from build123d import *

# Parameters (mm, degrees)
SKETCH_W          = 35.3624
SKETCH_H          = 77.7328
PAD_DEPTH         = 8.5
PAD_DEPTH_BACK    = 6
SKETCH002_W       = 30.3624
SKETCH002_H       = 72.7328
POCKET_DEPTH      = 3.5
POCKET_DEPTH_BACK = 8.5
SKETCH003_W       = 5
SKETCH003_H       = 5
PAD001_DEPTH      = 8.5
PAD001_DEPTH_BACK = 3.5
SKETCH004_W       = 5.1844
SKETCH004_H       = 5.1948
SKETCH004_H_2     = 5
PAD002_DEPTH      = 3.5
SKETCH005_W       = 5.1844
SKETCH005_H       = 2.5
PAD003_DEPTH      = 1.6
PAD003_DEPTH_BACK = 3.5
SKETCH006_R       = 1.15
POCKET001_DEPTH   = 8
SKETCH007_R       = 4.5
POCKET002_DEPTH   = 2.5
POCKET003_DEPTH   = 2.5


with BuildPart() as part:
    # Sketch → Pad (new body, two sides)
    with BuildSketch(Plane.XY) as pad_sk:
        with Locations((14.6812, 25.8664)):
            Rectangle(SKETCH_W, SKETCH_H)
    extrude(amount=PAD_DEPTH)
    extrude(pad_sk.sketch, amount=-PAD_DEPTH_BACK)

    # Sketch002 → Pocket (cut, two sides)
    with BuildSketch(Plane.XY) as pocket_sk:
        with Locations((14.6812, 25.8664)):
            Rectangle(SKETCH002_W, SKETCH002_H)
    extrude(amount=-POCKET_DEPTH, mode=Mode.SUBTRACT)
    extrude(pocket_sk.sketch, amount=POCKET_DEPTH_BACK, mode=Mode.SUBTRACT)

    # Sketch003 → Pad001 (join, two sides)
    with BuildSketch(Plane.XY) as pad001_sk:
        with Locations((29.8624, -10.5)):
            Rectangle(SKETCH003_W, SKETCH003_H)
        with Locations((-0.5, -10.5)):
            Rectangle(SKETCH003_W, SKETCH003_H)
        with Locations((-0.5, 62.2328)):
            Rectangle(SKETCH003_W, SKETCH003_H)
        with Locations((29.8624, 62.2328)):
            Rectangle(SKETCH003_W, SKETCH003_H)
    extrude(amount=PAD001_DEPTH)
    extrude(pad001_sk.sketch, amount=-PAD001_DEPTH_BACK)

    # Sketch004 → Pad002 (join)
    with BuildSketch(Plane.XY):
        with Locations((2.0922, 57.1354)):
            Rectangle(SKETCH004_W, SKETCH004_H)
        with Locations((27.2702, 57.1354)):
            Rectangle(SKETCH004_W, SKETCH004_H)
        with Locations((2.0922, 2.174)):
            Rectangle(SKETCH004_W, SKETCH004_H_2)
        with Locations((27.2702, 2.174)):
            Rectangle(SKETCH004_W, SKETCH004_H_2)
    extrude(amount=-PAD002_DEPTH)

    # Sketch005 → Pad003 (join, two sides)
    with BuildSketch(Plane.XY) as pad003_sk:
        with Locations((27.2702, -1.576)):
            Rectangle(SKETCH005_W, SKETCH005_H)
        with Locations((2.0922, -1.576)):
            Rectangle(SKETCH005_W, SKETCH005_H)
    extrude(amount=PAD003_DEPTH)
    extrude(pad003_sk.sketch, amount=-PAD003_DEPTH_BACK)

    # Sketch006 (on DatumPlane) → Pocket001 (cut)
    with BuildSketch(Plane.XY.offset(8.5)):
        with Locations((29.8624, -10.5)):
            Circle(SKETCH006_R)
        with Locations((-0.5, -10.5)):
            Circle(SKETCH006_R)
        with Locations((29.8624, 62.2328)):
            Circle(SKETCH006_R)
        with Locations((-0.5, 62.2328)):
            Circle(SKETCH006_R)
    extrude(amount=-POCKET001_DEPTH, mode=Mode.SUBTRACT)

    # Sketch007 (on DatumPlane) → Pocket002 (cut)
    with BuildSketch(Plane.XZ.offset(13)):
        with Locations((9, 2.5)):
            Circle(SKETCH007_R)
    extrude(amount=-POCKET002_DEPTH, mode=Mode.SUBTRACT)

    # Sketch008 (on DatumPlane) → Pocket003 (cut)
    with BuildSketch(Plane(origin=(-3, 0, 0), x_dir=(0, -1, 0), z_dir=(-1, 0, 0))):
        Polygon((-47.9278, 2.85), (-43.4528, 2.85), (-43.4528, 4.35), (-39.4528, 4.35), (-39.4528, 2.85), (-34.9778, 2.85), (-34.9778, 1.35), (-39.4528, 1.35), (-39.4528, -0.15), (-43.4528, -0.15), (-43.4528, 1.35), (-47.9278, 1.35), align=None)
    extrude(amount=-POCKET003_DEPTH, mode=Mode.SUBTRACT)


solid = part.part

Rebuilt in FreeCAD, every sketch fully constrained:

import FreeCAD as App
import Part
import Sketcher
from FreeCAD import Vector
Q = App.Units.Quantity

doc = App.newDocument("Part")
body = doc.addObject("PartDesign::Body", "Body")

# Sketch on XY plane
sketch1 = body.newObject("Sketcher::SketchObject", "Sketch")
sketch1.AttachmentSupport = (doc.getObject("XY_Plane"), [""])
sketch1.MapMode = "FlatFace"
sketch1.addGeometry([
    Part.LineSegment(Vector(-3, 65, 0), Vector(-3, -13, 0)),
    Part.LineSegment(Vector(-3, -13, 0), Vector(32, -13, 0)),
    Part.LineSegment(Vector(32, -13, 0), Vector(32, 65, 0)),
    Part.LineSegment(Vector(32, 65, 0), Vector(-3, 65, 0)),
], False)
sketch1.addConstraint([
    Sketcher.Constraint("Coincident", 0, 2, 1, 1),
    Sketcher.Constraint("Coincident", 1, 2, 2, 1),
    Sketcher.Constraint("Coincident", 2, 2, 3, 1),
    Sketcher.Constraint("Coincident", 3, 2, 0, 1),
    Sketcher.Constraint("Vertical", 0),
    Sketcher.Constraint("Horizontal", 1),
    Sketcher.Constraint("Vertical", 2),
    Sketcher.Constraint("Horizontal", 3),
    Sketcher.Constraint("DistanceX", 0, 2, -1, 1, Q("3 mm")),
    Sketcher.Constraint("DistanceY", 0, 2, -1, 1, Q("13 mm")),
    Sketcher.Constraint("DistanceX", 1, 1, 1, 2, Q("35.3624 mm")),
    Sketcher.Constraint("DistanceY", 0, 2, 0, 1, Q("77.7328 mm")),
])
pad1 = body.newObject("PartDesign::Pad", "Pad")
pad1.Profile = sketch1
pad1.Type = "TwoLengths"
pad1.Length = 8.5
pad1.Length2 = 6

# Sketch on XY plane
sketch2 = body.newObject("Sketcher::SketchObject", "Sketch001")
sketch2.AttachmentSupport = (doc.getObject("XY_Plane"), [""])
sketch2.MapMode = "FlatFace"
sketch2.addGeometry([
    Part.LineSegment(Vector(0, 62, 0), Vector(0, -10, 0)),
    Part.LineSegment(Vector(0, -10, 0), Vector(30, -10, 0)),
    Part.LineSegment(Vector(30, -10, 0), Vector(30, 62, 0)),
    Part.LineSegment(Vector(30, 62, 0), Vector(0, 62, 0)),
], False)
sketch2.addConstraint([
    Sketcher.Constraint("Coincident", 0, 2, 1, 1),
    Sketcher.Constraint("Coincident", 1, 2, 2, 1),
    Sketcher.Constraint("Coincident", 2, 2, 3, 1),
    Sketcher.Constraint("Coincident", 3, 2, 0, 1),
    Sketcher.Constraint("Vertical", 0),
    Sketcher.Constraint("Horizontal", 1),
    Sketcher.Constraint("Vertical", 2),
    Sketcher.Constraint("Horizontal", 3),
    Sketcher.Constraint("DistanceX", 0, 2, -1, 1, Q("0.5 mm")),
    Sketcher.Constraint("DistanceY", 0, 2, -1, 1, Q("10.5 mm")),
    Sketcher.Constraint("DistanceX", 1, 1, 1, 2, Q("30.3624 mm")),
    Sketcher.Constraint("DistanceY", 0, 2, 0, 1, Q("72.7328 mm")),
])
pocket1 = body.newObject("PartDesign::Pocket", "Pocket")
pocket1.Profile = sketch2
pocket1.Type = "TwoLengths"
pocket1.Length = 3.5
pocket1.Length2 = 8.5

# Sketch on XY plane
sketch3 = body.newObject("Sketcher::SketchObject", "Sketch002")
sketch3.AttachmentSupport = (doc.getObject("XY_Plane"), [""])
sketch3.MapMode = "FlatFace"
sketch3.addGeometry([
    Part.LineSegment(Vector(27, -8, 0), Vector(27, -13, 0)),  # 0
    Part.LineSegment(Vector(27, -13, 0), Vector(32, -13, 0)),  # 1
    Part.LineSegment(Vector(32, -13, 0), Vector(32, -8, 0)),  # 2
    Part.LineSegment(Vector(32, -8, 0), Vector(27, -8, 0)),  # 3
    Part.LineSegment(Vector(-3, -8, 0), Vector(-3, -13, 0)),  # 4
    Part.LineSegment(Vector(-3, -13, 0), Vector(2, -13, 0)),  # 5
    Part.LineSegment(Vector(2, -13, 0), Vector(2, -8, 0)),  # 6
    Part.LineSegment(Vector(2, -8, 0), Vector(-3, -8, 0)),  # 7
    Part.LineSegment(Vector(-3, 65, 0), Vector(-3, 60, 0)),  # 8
    Part.LineSegment(Vector(-3, 60, 0), Vector(2, 60, 0)),  # 9
    Part.LineSegment(Vector(2, 60, 0), Vector(2, 65, 0)),  # 10
    Part.LineSegment(Vector(2, 65, 0), Vector(-3, 65, 0)),  # 11
    Part.LineSegment(Vector(27, 65, 0), Vector(27, 60, 0)),  # 12
    Part.LineSegment(Vector(27, 60, 0), Vector(32, 60, 0)),  # 13
    Part.LineSegment(Vector(32, 60, 0), Vector(32, 65, 0)),  # 14
    Part.LineSegment(Vector(32, 65, 0), Vector(27, 65, 0)),  # 15
], False)
sketch3.addConstraint([
    Sketcher.Constraint("Coincident", 0, 2, 1, 1),
    Sketcher.Constraint("Coincident", 1, 2, 2, 1),
    Sketcher.Constraint("Coincident", 2, 2, 3, 1),
    Sketcher.Constraint("Coincident", 3, 2, 0, 1),
    Sketcher.Constraint("Coincident", 4, 2, 5, 1),
    Sketcher.Constraint("Coincident", 5, 2, 6, 1),
    Sketcher.Constraint("Coincident", 6, 2, 7, 1),
    Sketcher.Constraint("Coincident", 7, 2, 4, 1),
    Sketcher.Constraint("Coincident", 8, 2, 9, 1),
    Sketcher.Constraint("Coincident", 9, 2, 10, 1),
    Sketcher.Constraint("Coincident", 10, 2, 11, 1),
    Sketcher.Constraint("Coincident", 11, 2, 8, 1),
    Sketcher.Constraint("Coincident", 12, 2, 13, 1),
    Sketcher.Constraint("Coincident", 13, 2, 14, 1),
    Sketcher.Constraint("Coincident", 14, 2, 15, 1),
    Sketcher.Constraint("Coincident", 15, 2, 12, 1),
    Sketcher.Constraint("Vertical", 0),
    Sketcher.Constraint("Horizontal", 1),
    Sketcher.Constraint("Vertical", 2),
    Sketcher.Constraint("Horizontal", 3),
    Sketcher.Constraint("Vertical", 4),
    Sketcher.Constraint("Horizontal", 5),
    Sketcher.Constraint("Vertical", 6),
    Sketcher.Constraint("Horizontal", 7),
    Sketcher.Constraint("Vertical", 8),
    Sketcher.Constraint("Horizontal", 9),
    Sketcher.Constraint("Vertical", 10),
    Sketcher.Constraint("Horizontal", 11),
    Sketcher.Constraint("Vertical", 12),
    Sketcher.Constraint("Horizontal", 13),
    Sketcher.Constraint("Vertical", 14),
    Sketcher.Constraint("Horizontal", 15),
    Sketcher.Constraint("Horizontal", 1, 2, 4, 2),
    Sketcher.Constraint("Horizontal", 3, 2, 6, 2),
    Sketcher.Constraint("Horizontal", 9, 2, 12, 2),
    Sketcher.Constraint("Horizontal", 11, 2, 14, 2),
    Sketcher.Constraint("Vertical", 7, 2, 8, 2),
    Sketcher.Constraint("Vertical", 6, 2, 9, 2),
    Sketcher.Constraint("Vertical", 3, 2, 12, 2),
    Sketcher.Constraint("Vertical", 2, 2, 13, 2),
    Sketcher.Constraint("Equal", 3, 5),
    Sketcher.Constraint("Equal", 15, 0),
    Sketcher.Constraint("Equal", 6, 8),
    Sketcher.Constraint("DistanceX", 1, 1, 1, 2, Q("5 mm")),
    Sketcher.Constraint("DistanceY", 0, 2, -1, 1, Q("13 mm")),
    Sketcher.Constraint("DistanceX", 4, 2, -1, 1, Q("3 mm")),
    Sketcher.Constraint("DistanceX", -1, 1, 0, 2, Q("27.3624 mm")),
    Sketcher.Constraint("DistanceY", -1, 1, 8, 2, Q("59.7328 mm")),
])
pad2 = body.newObject("PartDesign::Pad", "Pad001")
pad2.Profile = sketch3
pad2.Type = "TwoLengths"
pad2.Length = 8.5
pad2.Length2 = 3.5

# Sketch on XY plane
sketch4 = body.newObject("Sketcher::SketchObject", "Sketch003")
sketch4.AttachmentSupport = (doc.getObject("XY_Plane"), [""])
sketch4.MapMode = "FlatFace"
sketch4.addGeometry([
    Part.LineSegment(Vector(0, 60, 0), Vector(0, 55, 0)),  # 0
    Part.LineSegment(Vector(0, 55, 0), Vector(5, 55, 0)),  # 1
    Part.LineSegment(Vector(5, 55, 0), Vector(5, 60, 0)),  # 2
    Part.LineSegment(Vector(5, 60, 0), Vector(0, 60, 0)),  # 3
    Part.LineSegment(Vector(25, 60, 0), Vector(25, 55, 0)),  # 4
    Part.LineSegment(Vector(25, 55, 0), Vector(30, 55, 0)),  # 5
    Part.LineSegment(Vector(30, 55, 0), Vector(30, 60, 0)),  # 6
    Part.LineSegment(Vector(30, 60, 0), Vector(25, 60, 0)),  # 7
    Part.LineSegment(Vector(0, 5, 0), Vector(0, 0, 0)),  # 8
    Part.LineSegment(Vector(0, 0, 0), Vector(5, 0, 0)),  # 9
    Part.LineSegment(Vector(5, 0, 0), Vector(5, 5, 0)),  # 10
    Part.LineSegment(Vector(5, 5, 0), Vector(0, 5, 0)),  # 11
    Part.LineSegment(Vector(25, 5, 0), Vector(25, 0, 0)),  # 12
    Part.LineSegment(Vector(25, 0, 0), Vector(30, 0, 0)),  # 13
    Part.LineSegment(Vector(30, 0, 0), Vector(30, 5, 0)),  # 14
    Part.LineSegment(Vector(30, 5, 0), Vector(25, 5, 0)),  # 15
], False)
sketch4.addConstraint([
    Sketcher.Constraint("Coincident", 0, 2, 1, 1),
    Sketcher.Constraint("Coincident", 1, 2, 2, 1),
    Sketcher.Constraint("Coincident", 2, 2, 3, 1),
    Sketcher.Constraint("Coincident", 3, 2, 0, 1),
    Sketcher.Constraint("Coincident", 4, 2, 5, 1),
    Sketcher.Constraint("Coincident", 5, 2, 6, 1),
    Sketcher.Constraint("Coincident", 6, 2, 7, 1),
    Sketcher.Constraint("Coincident", 7, 2, 4, 1),
    Sketcher.Constraint("Coincident", 8, 2, 9, 1),
    Sketcher.Constraint("Coincident", 9, 2, 10, 1),
    Sketcher.Constraint("Coincident", 10, 2, 11, 1),
    Sketcher.Constraint("Coincident", 11, 2, 8, 1),
    Sketcher.Constraint("Coincident", 12, 2, 13, 1),
    Sketcher.Constraint("Coincident", 13, 2, 14, 1),
    Sketcher.Constraint("Coincident", 14, 2, 15, 1),
    Sketcher.Constraint("Coincident", 15, 2, 12, 1),
    Sketcher.Constraint("Vertical", 0),
    Sketcher.Constraint("Horizontal", 1),
    Sketcher.Constraint("Vertical", 2),
    Sketcher.Constraint("Horizontal", 3),
    Sketcher.Constraint("Vertical", 4),
    Sketcher.Constraint("Horizontal", 5),
    Sketcher.Constraint("Vertical", 6),
    Sketcher.Constraint("Horizontal", 7),
    Sketcher.Constraint("Vertical", 8),
    Sketcher.Constraint("Horizontal", 9),
    Sketcher.Constraint("Vertical", 10),
    Sketcher.Constraint("Horizontal", 11),
    Sketcher.Constraint("Vertical", 12),
    Sketcher.Constraint("Horizontal", 13),
    Sketcher.Constraint("Vertical", 14),
    Sketcher.Constraint("Horizontal", 15),
    Sketcher.Constraint("Horizontal", 1, 2, 4, 2),
    Sketcher.Constraint("Horizontal", 3, 2, 6, 2),
    Sketcher.Constraint("Horizontal", 9, 2, 12, 2),
    Sketcher.Constraint("Horizontal", 11, 2, 14, 2),
    Sketcher.Constraint("Vertical", 3, 2, 8, 2),
    Sketcher.Constraint("Vertical", 2, 2, 9, 2),
    Sketcher.Constraint("Vertical", 7, 2, 12, 2),
    Sketcher.Constraint("Vertical", 6, 2, 13, 2),
    Sketcher.Constraint("Equal", 3, 5),
    Sketcher.Constraint("DistanceY", 8, 2, 8, 1, Q("5 mm")),
    Sketcher.Constraint("DistanceX", 0, 2, -1, 1, Q("0.5 mm")),
    Sketcher.Constraint("DistanceX", 1, 1, 1, 2, Q("5.1844 mm")),
    Sketcher.Constraint("DistanceY", 0, 2, 0, 1, Q("5.1948 mm")),
    Sketcher.Constraint("DistanceY", -1, 1, 0, 2, Q("54.538 mm")),
    Sketcher.Constraint("DistanceX", -1, 1, 4, 2, Q("24.678 mm")),
    Sketcher.Constraint("DistanceY", 8, 2, -1, 1, Q("0.326 mm")),
])
pad3 = body.newObject("PartDesign::Pad", "Pad002")
pad3.Profile = sketch4
pad3.Length = 3.5
pad3.Reversed = True

# Sketch on XY plane
sketch5 = body.newObject("Sketcher::SketchObject", "Sketch004")
sketch5.AttachmentSupport = (doc.getObject("XY_Plane"), [""])
sketch5.MapMode = "FlatFace"
sketch5.addGeometry([
    Part.LineSegment(Vector(24.7, -0.3, 0), Vector(24.7, -2.8, 0)),  # 0
    Part.LineSegment(Vector(24.7, -2.8, 0), Vector(29.9, -2.8, 0)),  # 1
    Part.LineSegment(Vector(29.9, -2.8, 0), Vector(29.9, -0.3, 0)),  # 2
    Part.LineSegment(Vector(29.9, -0.3, 0), Vector(24.7, -0.3, 0)),  # 3
    Part.LineSegment(Vector(-0.5, -0.3, 0), Vector(-0.5, -2.8, 0)),  # 4
    Part.LineSegment(Vector(-0.5, -2.8, 0), Vector(4.7, -2.8, 0)),  # 5
    Part.LineSegment(Vector(4.7, -2.8, 0), Vector(4.7, -0.3, 0)),  # 6
    Part.LineSegment(Vector(4.7, -0.3, 0), Vector(-0.5, -0.3, 0)),  # 7
], False)
sketch5.addConstraint([
    Sketcher.Constraint("Coincident", 0, 2, 1, 1),
    Sketcher.Constraint("Coincident", 1, 2, 2, 1),
    Sketcher.Constraint("Coincident", 2, 2, 3, 1),
    Sketcher.Constraint("Coincident", 3, 2, 0, 1),
    Sketcher.Constraint("Coincident", 4, 2, 5, 1),
    Sketcher.Constraint("Coincident", 5, 2, 6, 1),
    Sketcher.Constraint("Coincident", 6, 2, 7, 1),
    Sketcher.Constraint("Coincident", 7, 2, 4, 1),
    Sketcher.Constraint("Vertical", 0),
    Sketcher.Constraint("Horizontal", 1),
    Sketcher.Constraint("Vertical", 2),
    Sketcher.Constraint("Horizontal", 3),
    Sketcher.Constraint("Vertical", 4),
    Sketcher.Constraint("Horizontal", 5),
    Sketcher.Constraint("Vertical", 6),
    Sketcher.Constraint("Horizontal", 7),
    Sketcher.Constraint("Horizontal", 1, 2, 4, 2),
    Sketcher.Constraint("Horizontal", 3, 2, 6, 2),
    Sketcher.Constraint("Equal", 3, 5),
    Sketcher.Constraint("DistanceY", 0, 2, 0, 1, Q("2.5 mm")),
    Sketcher.Constraint("DistanceX", 4, 2, -1, 1, Q("0.5 mm")),
    Sketcher.Constraint("DistanceX", 1, 1, 1, 2, Q("5.1844 mm")),
    Sketcher.Constraint("DistanceX", -1, 1, 0, 2, Q("24.678 mm")),
    Sketcher.Constraint("DistanceY", 0, 2, -1, 1, Q("2.826 mm")),
])
pad4 = body.newObject("PartDesign::Pad", "Pad003")
pad4.Profile = sketch5
pad4.Type = "TwoLengths"
pad4.Length = 1.6
pad4.Length2 = 3.5

# Sketch on XY plane
sketch6 = body.newObject("Sketcher::SketchObject", "Sketch005")
sketch6.AttachmentSupport = (doc.getObject("XY_Plane"), [""])
sketch6.MapMode = "FlatFace"
sketch6.AttachmentOffset = App.Placement(Vector(0, 0, 8.5), App.Rotation())
sketch6.addGeometry([
    Part.Circle(Vector(29.9, -10.5, 0), Vector(0, 0, 1), 1.1),
    Part.Circle(Vector(-0.5, -10.5, 0), Vector(0, 0, 1), 1.1),
    Part.Circle(Vector(29.9, 62.2, 0), Vector(0, 0, 1), 1.1),
    Part.Circle(Vector(-0.5, 62.2, 0), Vector(0, 0, 1), 1.1),
], False)
sketch6.addConstraint([
    Sketcher.Constraint("Equal", 0, 1),
    Sketcher.Constraint("Equal", 1, 2),
    Sketcher.Constraint("Equal", 2, 3),
    Sketcher.Constraint("Horizontal", 0, 3, 1, 3),
    Sketcher.Constraint("Horizontal", 2, 3, 3, 3),
    Sketcher.Constraint("Vertical", 0, 3, 2, 3),
    Sketcher.Constraint("Vertical", 1, 3, 3, 3),
    Sketcher.Constraint("Diameter", 0, Q("2.3 mm")),
    Sketcher.Constraint("DistanceY", 0, 3, -1, 1, Q("10.5 mm")),
    Sketcher.Constraint("DistanceX", 1, 3, -1, 1, Q("0.5 mm")),
    Sketcher.Constraint("DistanceX", -1, 1, 0, 3, Q("29.8624 mm")),
    Sketcher.Constraint("DistanceY", -1, 1, 2, 3, Q("62.2328 mm")),
])
pocket2 = body.newObject("PartDesign::Pocket", "Pocket001")
pocket2.Profile = sketch6
pocket2.Length = 8

# Sketch on XZ plane
sketch7 = body.newObject("Sketcher::SketchObject", "Sketch006")
sketch7.AttachmentSupport = (doc.getObject("XZ_Plane"), [""])
sketch7.MapMode = "FlatFace"
sketch7.AttachmentOffset = App.Placement(Vector(0, 0, 13), App.Rotation())
sketch7.addGeometry(Part.Circle(Vector(9, 2.5, 0), Vector(0, 0, 1), 4.5), False)
sketch7.addConstraint([
    Sketcher.Constraint("Diameter", 0, Q("9 mm")),
    Sketcher.Constraint("DistanceX", -1, 1, 0, 3, Q("9 mm")),
    Sketcher.Constraint("DistanceY", -1, 1, 0, 3, Q("2.5 mm")),
])
pocket3 = body.newObject("PartDesign::Pocket", "Pocket002")
pocket3.Profile = sketch7
pocket3.Length = 2.5

# Sketch on YZ plane
sketch8 = body.newObject("Sketcher::SketchObject", "Sketch007")
sketch8.AttachmentSupport = (doc.getObject("YZ_Plane"), [""])
sketch8.MapMode = "FlatFace"
sketch8.AttachmentOffset = App.Placement(Vector(0, 0, -3), App.Rotation())
sketch8.addGeometry([
    Part.LineSegment(Vector(43.5, 2.9, 0), Vector(47.9, 2.9, 0)),  # 0
    Part.LineSegment(Vector(47.9, 2.9, 0), Vector(47.9, 1.4, 0)),  # 1
    Part.LineSegment(Vector(47.9, 1.4, 0), Vector(43.5, 1.4, 0)),  # 2
    Part.LineSegment(Vector(43.5, 1.4, 0), Vector(43.5, -0.1, 0)),  # 3
    Part.LineSegment(Vector(43.5, -0.1, 0), Vector(39.5, -0.1, 0)),  # 4
    Part.LineSegment(Vector(39.5, -0.1, 0), Vector(39.5, 1.4, 0)),  # 5
    Part.LineSegment(Vector(39.5, 1.4, 0), Vector(35, 1.4, 0)),  # 6
    Part.LineSegment(Vector(35, 1.4, 0), Vector(35, 2.9, 0)),  # 7
    Part.LineSegment(Vector(35, 2.9, 0), Vector(39.5, 2.9, 0)),  # 8
    Part.LineSegment(Vector(39.5, 2.9, 0), Vector(39.5, 4.3, 0)),  # 9
    Part.LineSegment(Vector(39.5, 4.3, 0), Vector(43.5, 4.3, 0)),  # 10
    Part.LineSegment(Vector(43.5, 4.3, 0), Vector(43.5, 2.9, 0)),  # 11
], False)
sketch8.addConstraint([
    Sketcher.Constraint("Coincident", 0, 2, 1, 1),
    Sketcher.Constraint("Coincident", 1, 2, 2, 1),
    Sketcher.Constraint("Coincident", 2, 2, 3, 1),
    Sketcher.Constraint("Coincident", 3, 2, 4, 1),
    Sketcher.Constraint("Coincident", 4, 2, 5, 1),
    Sketcher.Constraint("Coincident", 5, 2, 6, 1),
    Sketcher.Constraint("Coincident", 6, 2, 7, 1),
    Sketcher.Constraint("Coincident", 7, 2, 8, 1),
    Sketcher.Constraint("Coincident", 8, 2, 9, 1),
    Sketcher.Constraint("Coincident", 9, 2, 10, 1),
    Sketcher.Constraint("Coincident", 10, 2, 11, 1),
    Sketcher.Constraint("Coincident", 11, 2, 0, 1),
    Sketcher.Constraint("Horizontal", 0),
    Sketcher.Constraint("Vertical", 1),
    Sketcher.Constraint("Horizontal", 2),
    Sketcher.Constraint("Vertical", 3),
    Sketcher.Constraint("Horizontal", 4),
    Sketcher.Constraint("Vertical", 5),
    Sketcher.Constraint("Horizontal", 6),
    Sketcher.Constraint("Vertical", 7),
    Sketcher.Constraint("Horizontal", 8),
    Sketcher.Constraint("Vertical", 9),
    Sketcher.Constraint("Horizontal", 10),
    Sketcher.Constraint("Vertical", 11),
    Sketcher.Constraint("Horizontal", 2, 2, 5, 2),
    Sketcher.Constraint("Horizontal", 0, 2, 7, 2),
    Sketcher.Constraint("Vertical", 5, 2, 8, 2),
    Sketcher.Constraint("Vertical", 3, 2, 10, 2),
    Sketcher.Constraint("Equal", 2, 6),
    Sketcher.Constraint("Equal", 1, 3),
    Sketcher.Constraint("Equal", 7, 9),
    Sketcher.Constraint("DistanceX", 4, 2, 4, 1, Q("4 mm")),
    Sketcher.Constraint("DistanceY", 1, 2, 1, 1, Q("1.5 mm")),
    Sketcher.Constraint("DistanceX", 0, 1, 0, 2, Q("4.475 mm")),
    Sketcher.Constraint("DistanceY", -1, 1, 0, 2, Q("2.85 mm")),
    Sketcher.Constraint("DistanceX", -1, 1, 0, 2, Q("47.9278 mm")),
])
pocket4 = body.newObject("PartDesign::Pocket", "Pocket003")
pocket4.Profile = sketch8
pocket4.Length = 2.5
pocket4.Reversed = True

doc.recompute()
